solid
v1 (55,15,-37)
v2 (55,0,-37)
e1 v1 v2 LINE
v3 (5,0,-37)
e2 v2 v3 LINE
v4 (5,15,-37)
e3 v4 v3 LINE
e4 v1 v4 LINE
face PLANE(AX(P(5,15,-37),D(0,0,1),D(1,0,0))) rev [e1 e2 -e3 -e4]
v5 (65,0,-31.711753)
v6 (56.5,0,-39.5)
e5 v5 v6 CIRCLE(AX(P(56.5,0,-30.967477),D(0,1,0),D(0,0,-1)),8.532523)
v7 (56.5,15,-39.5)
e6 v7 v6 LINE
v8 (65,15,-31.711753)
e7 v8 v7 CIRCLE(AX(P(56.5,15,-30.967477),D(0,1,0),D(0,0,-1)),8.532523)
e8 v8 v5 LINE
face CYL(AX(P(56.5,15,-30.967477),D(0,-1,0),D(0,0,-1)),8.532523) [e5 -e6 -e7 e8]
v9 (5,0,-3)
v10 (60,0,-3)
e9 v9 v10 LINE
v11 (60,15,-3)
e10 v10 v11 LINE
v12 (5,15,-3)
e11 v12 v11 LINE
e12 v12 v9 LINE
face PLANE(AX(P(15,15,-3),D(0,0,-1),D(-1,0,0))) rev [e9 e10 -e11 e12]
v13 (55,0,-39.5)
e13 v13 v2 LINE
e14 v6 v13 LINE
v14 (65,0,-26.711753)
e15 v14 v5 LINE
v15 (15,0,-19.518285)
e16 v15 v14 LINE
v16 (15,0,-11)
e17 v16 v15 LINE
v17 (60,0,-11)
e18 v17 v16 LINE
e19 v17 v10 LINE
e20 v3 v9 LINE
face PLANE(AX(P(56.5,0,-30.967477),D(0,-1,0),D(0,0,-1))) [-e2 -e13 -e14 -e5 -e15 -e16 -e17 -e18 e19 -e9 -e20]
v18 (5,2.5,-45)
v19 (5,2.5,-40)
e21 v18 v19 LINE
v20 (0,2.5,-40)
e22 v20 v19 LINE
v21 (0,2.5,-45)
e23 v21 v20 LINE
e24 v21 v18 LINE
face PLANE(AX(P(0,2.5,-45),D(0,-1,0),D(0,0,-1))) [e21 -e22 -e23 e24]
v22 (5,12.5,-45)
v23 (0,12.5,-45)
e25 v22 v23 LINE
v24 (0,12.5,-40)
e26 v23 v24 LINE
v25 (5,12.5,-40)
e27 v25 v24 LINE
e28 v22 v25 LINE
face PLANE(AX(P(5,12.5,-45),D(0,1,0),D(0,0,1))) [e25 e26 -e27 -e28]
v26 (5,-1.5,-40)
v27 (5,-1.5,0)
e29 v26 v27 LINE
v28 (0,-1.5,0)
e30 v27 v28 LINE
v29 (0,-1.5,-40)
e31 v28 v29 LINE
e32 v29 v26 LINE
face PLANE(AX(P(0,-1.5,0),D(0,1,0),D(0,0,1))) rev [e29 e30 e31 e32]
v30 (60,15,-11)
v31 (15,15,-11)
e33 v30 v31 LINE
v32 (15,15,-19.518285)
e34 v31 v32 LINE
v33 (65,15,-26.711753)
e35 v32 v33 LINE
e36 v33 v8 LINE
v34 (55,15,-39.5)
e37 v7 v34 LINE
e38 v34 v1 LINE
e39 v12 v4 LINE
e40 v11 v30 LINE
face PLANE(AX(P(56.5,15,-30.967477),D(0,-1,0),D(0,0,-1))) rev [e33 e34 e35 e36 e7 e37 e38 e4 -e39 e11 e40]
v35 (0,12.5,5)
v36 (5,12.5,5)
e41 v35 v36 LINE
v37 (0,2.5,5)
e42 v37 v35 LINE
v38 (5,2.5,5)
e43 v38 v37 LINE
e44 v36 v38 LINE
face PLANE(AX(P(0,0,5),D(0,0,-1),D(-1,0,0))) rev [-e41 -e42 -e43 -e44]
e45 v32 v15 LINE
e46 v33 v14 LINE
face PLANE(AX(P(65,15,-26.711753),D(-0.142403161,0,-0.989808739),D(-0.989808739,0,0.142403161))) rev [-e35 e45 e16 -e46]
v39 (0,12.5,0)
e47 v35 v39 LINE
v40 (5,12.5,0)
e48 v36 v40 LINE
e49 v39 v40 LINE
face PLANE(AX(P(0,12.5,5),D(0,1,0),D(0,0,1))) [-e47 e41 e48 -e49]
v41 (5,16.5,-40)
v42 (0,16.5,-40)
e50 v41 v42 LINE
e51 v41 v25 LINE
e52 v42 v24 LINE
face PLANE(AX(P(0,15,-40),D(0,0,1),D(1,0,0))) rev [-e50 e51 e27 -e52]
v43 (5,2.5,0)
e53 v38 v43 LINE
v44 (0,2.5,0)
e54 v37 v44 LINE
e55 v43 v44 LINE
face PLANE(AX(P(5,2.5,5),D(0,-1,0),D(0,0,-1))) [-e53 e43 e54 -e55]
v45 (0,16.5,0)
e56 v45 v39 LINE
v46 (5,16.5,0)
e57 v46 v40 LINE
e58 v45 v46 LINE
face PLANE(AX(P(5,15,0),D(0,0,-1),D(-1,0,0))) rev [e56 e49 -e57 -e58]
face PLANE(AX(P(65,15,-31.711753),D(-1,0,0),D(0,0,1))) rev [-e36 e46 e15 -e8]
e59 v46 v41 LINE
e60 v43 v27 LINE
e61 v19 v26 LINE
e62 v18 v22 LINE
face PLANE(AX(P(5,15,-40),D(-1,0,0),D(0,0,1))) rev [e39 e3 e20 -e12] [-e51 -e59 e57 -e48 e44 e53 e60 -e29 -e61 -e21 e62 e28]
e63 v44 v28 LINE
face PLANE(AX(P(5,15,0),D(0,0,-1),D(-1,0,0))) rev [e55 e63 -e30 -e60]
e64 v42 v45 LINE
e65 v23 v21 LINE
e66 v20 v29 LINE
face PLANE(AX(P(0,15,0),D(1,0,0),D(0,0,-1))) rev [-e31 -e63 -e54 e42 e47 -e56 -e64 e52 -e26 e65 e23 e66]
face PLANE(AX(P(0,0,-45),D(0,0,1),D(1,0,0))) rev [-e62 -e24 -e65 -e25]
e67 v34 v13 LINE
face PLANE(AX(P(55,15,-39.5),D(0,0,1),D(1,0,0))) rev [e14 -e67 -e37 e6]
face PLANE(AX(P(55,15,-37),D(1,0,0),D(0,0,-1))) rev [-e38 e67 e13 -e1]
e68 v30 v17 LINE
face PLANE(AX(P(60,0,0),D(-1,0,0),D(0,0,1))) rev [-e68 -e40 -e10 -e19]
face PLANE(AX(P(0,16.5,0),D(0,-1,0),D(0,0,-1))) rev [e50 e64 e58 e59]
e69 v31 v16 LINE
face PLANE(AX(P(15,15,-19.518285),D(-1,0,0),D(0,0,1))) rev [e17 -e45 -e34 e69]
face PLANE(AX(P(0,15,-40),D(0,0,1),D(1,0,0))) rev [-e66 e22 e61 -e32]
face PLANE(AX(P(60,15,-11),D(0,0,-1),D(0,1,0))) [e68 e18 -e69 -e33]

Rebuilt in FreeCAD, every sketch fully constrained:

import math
import FreeCAD as App
import Part
import Sketcher
Q = App.Units.Quantity


def add_polygon(sketch, points):
    """Adds a closed chain of lines whose ends are joined by coincident constraints."""
    first, n = sketch.GeometryCount, len(points)
    for a, b in zip(points, points[1:] + points[:1]):
        sketch.addGeometry(Part.LineSegment(App.Vector(*a, 0), App.Vector(*b, 0)), False)
    for i in range(n):
        sketch.addConstraint(Sketcher.Constraint("Coincident", first + i, 2, first + (i + 1) % n, 1))

doc = App.newDocument("Part")
body = doc.addObject("PartDesign::Body", "Body")

# Sketch on XZ plane
sketch1 = body.newObject("Sketcher::SketchObject", "Sketch")
sketch1.AttachmentSupport = (doc.getObject("XZ_Plane"), [""])
sketch1.MapMode = "FlatFace"
sketch1.addGeometry(Part.LineSegment(App.Vector(0, -40, 0), App.Vector(0, 0, 0)), False)
sketch1.addGeometry(Part.LineSegment(App.Vector(0, 0, 0), App.Vector(5, 0, 0)), False)
sketch1.addGeometry(Part.LineSegment(App.Vector(5, 0, 0), App.Vector(5, -3, 0)), False)
sketch1.addGeometry(Part.LineSegment(App.Vector(5, -3, 0), App.Vector(15, -3, 0)), False)
sketch1.addGeometry(Part.LineSegment(App.Vector(15, -3, 0), App.Vector(15, -19.5, 0)), False)
sketch1.addGeometry(Part.LineSegment(App.Vector(15, -19.5, 0), App.Vector(65, -26.7, 0)), False)
sketch1.addGeometry(Part.LineSegment(App.Vector(65, -26.7, 0), App.Vector(65, -31.7, 0)), False)
sketch1.addGeometry(Part.ArcOfCircle(Part.Circle(App.Vector(56.5, -31, 0), App.Vector(0, 0, 1), 8.5), math.radians(-90), math.radians(-5)), False)
sketch1.addGeometry(Part.LineSegment(App.Vector(56.5, -39.5, 0), App.Vector(55, -39.5, 0)), False)
sketch1.addGeometry(Part.LineSegment(App.Vector(55, -39.5, 0), App.Vector(55, -37, 0)), False)
sketch1.addGeometry(Part.LineSegment(App.Vector(55, -37, 0), App.Vector(5, -37, 0)), False)
sketch1.addGeometry(Part.LineSegment(App.Vector(5, -37, 0), App.Vector(5, -40, 0)), False)
sketch1.addGeometry(Part.LineSegment(App.Vector(5, -40, 0), App.Vector(0, -40, 0)), False)
sketch1.addConstraint(Sketcher.Constraint("Coincident", 0, 2, 1, 1))
sketch1.addConstraint(Sketcher.Constraint("Coincident", 1, 2, 2, 1))
sketch1.addConstraint(Sketcher.Constraint("Coincident", 2, 2, 3, 1))
sketch1.addConstraint(Sketcher.Constraint("Coincident", 3, 2, 4, 1))
sketch1.addConstraint(Sketcher.Constraint("Coincident", 4, 2, 5, 1))
sketch1.addConstraint(Sketcher.Constraint("Coincident", 5, 2, 6, 1))
sketch1.addConstraint(Sketcher.Constraint("Coincident", 6, 2, 7, 2))
sketch1.addConstraint(Sketcher.Constraint("Tangent", 7, 1, 8, 1))
sketch1.addConstraint(Sketcher.Constraint("Coincident", 8, 2, 9, 1))
sketch1.addConstraint(Sketcher.Constraint("Coincident", 9, 2, 10, 1))
sketch1.addConstraint(Sketcher.Constraint("Coincident", 10, 2, 11, 1))
sketch1.addConstraint(Sketcher.Constraint("Coincident", 11, 2, 12, 1))
sketch1.addConstraint(Sketcher.Constraint("Coincident", 12, 2, 0, 1))
sketch1.addConstraint(Sketcher.Constraint("Vertical", 0))
sketch1.addConstraint(Sketcher.Constraint("Horizontal", 1))
sketch1.addConstraint(Sketcher.Constraint("Vertical", 2))
sketch1.addConstraint(Sketcher.Constraint("Horizontal", 3))
sketch1.addConstraint(Sketcher.Constraint("Vertical", 4))
sketch1.addConstraint(Sketcher.Constraint("Vertical", 6))
sketch1.addConstraint(Sketcher.Constraint("Horizontal", 8))
sketch1.addConstraint(Sketcher.Constraint("Vertical", 9))
sketch1.addConstraint(Sketcher.Constraint("Horizontal", 10))
sketch1.addConstraint(Sketcher.Constraint("Vertical", 11))
sketch1.addConstraint(Sketcher.Constraint("Horizontal", 12))
sketch1.addConstraint(Sketcher.Constraint("Coincident", 0, 2, -1, 1))
sketch1.addConstraint(Sketcher.Constraint("Vertical", 2, 2, 10, 2))
sketch1.addConstraint(Sketcher.Constraint("Equal", 12, 6))
sketch1.addConstraint(Sketcher.Constraint("Equal", 2, 11))
sketch1.addConstraint(Sketcher.Constraint("DistanceX", 1, 1, 1, 2, Q("5 mm")))
sketch1.addConstraint(Sketcher.Constraint("DistanceX", 3, 1, 3, 2, Q("10 mm")))
sketch1.addConstraint(Sketcher.Constraint("DistanceX", 10, 2, 10, 1, Q("50 mm")))
sketch1.addConstraint(Sketcher.Constraint("DistanceY", 0, 1, 0, 2, Q("40 mm")))
sketch1.addConstraint(Sketcher.Constraint("DistanceY", 2, 2, 2, 1, Q("3 mm")))
sketch1.addConstraint(Sketcher.Constraint("DistanceX", 8, 2, 8, 1, Q("1.5 mm")))
sketch1.addConstraint(Sketcher.Constraint("DistanceY", 9, 1, 9, 2, Q("2.5 mm")))
sketch1.addConstraint(Sketcher.Constraint("DistanceX", -1, 1, 5, 2, Q("65 mm")))
sketch1.addConstraint(Sketcher.Constraint("Radius", 7, Q("8.532523 mm")))
sketch1.addConstraint(Sketcher.Constraint("Distance", 5, Q("50.51481 mm")))
pad1 = body.newObject("PartDesign::Pad", "Pad")
pad1.Profile = sketch1
pad1.Length = 15
pad1.Reversed = True

# Sketch on XZ plane
sketch2 = body.newObject("Sketcher::SketchObject", "Sketch001")
sketch2.AttachmentSupport = (doc.getObject("XZ_Plane"), [""])
sketch2.MapMode = "FlatFace"
sketch2.AttachmentOffset = App.Placement(App.Vector(0, 0, -15), App.Rotation())
add_polygon(sketch2, [(0, -40), (0, 0), (5, 0), (5, -40)])  # lines 0-3
sketch2.addConstraint(Sketcher.Constraint("Vertical", 0))
sketch2.addConstraint(Sketcher.Constraint("Horizontal", 1))
sketch2.addConstraint(Sketcher.Constraint("Vertical", 2))
sketch2.addConstraint(Sketcher.Constraint("Horizontal", 3))
sketch2.addConstraint(Sketcher.Constraint("Coincident", 0, 2, -1, 1))
sketch2.addConstraint(Sketcher.Constraint("DistanceX", 1, 1, 1, 2, Q("5 mm")))
sketch2.addConstraint(Sketcher.Constraint("DistanceY", 0, 1, 0, 2, Q("40 mm")))
pad2 = body.newObject("PartDesign::Pad", "Pad001")
pad2.Profile = sketch2
pad2.Length = 1.5
pad2.Reversed = True

# Sketch on XZ plane
sketch3 = body.newObject("Sketcher::SketchObject", "Sketch002")
sketch3.AttachmentSupport = (doc.getObject("XZ_Plane"), [""])
sketch3.MapMode = "FlatFace"
add_polygon(sketch3, [(0, 0), (0, -40), (5, -40), (5, 0)])  # lines 0-3
sketch3.addConstraint(Sketcher.Constraint("Vertical", 0))
sketch3.addConstraint(Sketcher.Constraint("Horizontal", 1))
sketch3.addConstraint(Sketcher.Constraint("Vertical", 2))
sketch3.addConstraint(Sketcher.Constraint("Horizontal", 3))
sketch3.addConstraint(Sketcher.Constraint("Coincident", 3, 2, -1, 1))
sketch3.addConstraint(Sketcher.Constraint("DistanceX", 1, 1, 1, 2, Q("5 mm")))
sketch3.addConstraint(Sketcher.Constraint("DistanceY", 0, 2, 0, 1, Q("40 mm")))
pad3 = body.newObject("PartDesign::Pad", "Pad002")
pad3.Profile = sketch3
pad3.Length = 1.5

# Sketch on YZ plane
sketch4 = body.newObject("Sketcher::SketchObject", "Sketch003")
sketch4.AttachmentSupport = (doc.getObject("YZ_Plane"), [""])
sketch4.MapMode = "FlatFace"
sketch4.AttachmentOffset = App.Placement(App.Vector(0, 0, 15), App.Rotation())
add_polygon(sketch4, [(15, -3), (0, -3), (0, -11), (15, -11)])  # lines 0-3
sketch4.addConstraint(Sketcher.Constraint("Horizontal", 0))
sketch4.addConstraint(Sketcher.Constraint("Vertical", 1))
sketch4.addConstraint(Sketcher.Constraint("Horizontal", 2))
sketch4.addConstraint(Sketcher.Constraint("Vertical", 3))
sketch4.addConstraint(Sketcher.Constraint("PointOnObject", 0, 2, -2))
sketch4.addConstraint(Sketcher.Constraint("DistanceX", 0, 2, 0, 1, Q("15 mm")))
sketch4.addConstraint(Sketcher.Constraint("DistanceY", 1, 2, 1, 1, Q("8 mm")))
sketch4.addConstraint(Sketcher.Constraint("DistanceY", 0, 2, -1, 1, Q("3 mm")))
pad4 = body.newObject("PartDesign::Pad", "Pad003")
pad4.Profile = sketch4
pad4.Length = 45

# Sketch on XY plane
sketch5 = body.newObject("Sketcher::SketchObject", "Sketch004")
sketch5.AttachmentSupport = (doc.getObject("XY_Plane"), [""])
sketch5.MapMode = "FlatFace"
add_polygon(sketch5, [(0, 12), (0, 2), (5, 2), (5, 12)])  # lines 0-3
sketch5.addConstraint(Sketcher.Constraint("Vertical", 0))
sketch5.addConstraint(Sketcher.Constraint("Horizontal", 1))
sketch5.addConstraint(Sketcher.Constraint("Vertical", 2))
sketch5.addConstraint(Sketcher.Constraint("Horizontal", 3))
sketch5.addConstraint(Sketcher.Constraint("PointOnObject", 0, 2, -2))
sketch5.addConstraint(Sketcher.Constraint("DistanceX", 1, 1, 1, 2, Q("5 mm")))
sketch5.addConstraint(Sketcher.Constraint("DistanceY", 0, 2, 0, 1, Q("10 mm")))
sketch5.addConstraint(Sketcher.Constraint("DistanceY", -1, 1, 0, 2, Q("2.5 mm")))
pad5 = body.newObject("PartDesign::Pad", "Pad004")
pad5.Profile = sketch5
pad5.Length = 5

# Sketch on XY plane
sketch6 = body.newObject("Sketcher::SketchObject", "Sketch005")
sketch6.AttachmentSupport = (doc.getObject("XY_Plane"), [""])
sketch6.MapMode = "FlatFace"
sketch6.AttachmentOffset = App.Placement(App.Vector(0, 0, -40), App.Rotation())
add_polygon(sketch6, [(5, 12), (5, 2), (0, 2), (0, 12)])  # lines 0-3
sketch6.addConstraint(Sketcher.Constraint("Vertical", 0))
sketch6.addConstraint(Sketcher.Constraint("Horizontal", 1))
sketch6.addConstraint(Sketcher.Constraint("Vertical", 2))
sketch6.addConstraint(Sketcher.Constraint("Horizontal", 3))
sketch6.addConstraint(Sketcher.Constraint("PointOnObject", 1, 2, -2))
sketch6.addConstraint(Sketcher.Constraint("DistanceX", 1, 2, 1, 1, Q("5 mm")))
sketch6.addConstraint(Sketcher.Constraint("DistanceY", 0, 2, 0, 1, Q("10 mm")))
sketch6.addConstraint(Sketcher.Constraint("DistanceY", -1, 1, 0, 2, Q("2.5 mm")))
pad6 = body.newObject("PartDesign::Pad", "Pad005")
pad6.Profile = sketch6
pad6.Length = 5
pad6.Reversed = True

doc.recompute()
